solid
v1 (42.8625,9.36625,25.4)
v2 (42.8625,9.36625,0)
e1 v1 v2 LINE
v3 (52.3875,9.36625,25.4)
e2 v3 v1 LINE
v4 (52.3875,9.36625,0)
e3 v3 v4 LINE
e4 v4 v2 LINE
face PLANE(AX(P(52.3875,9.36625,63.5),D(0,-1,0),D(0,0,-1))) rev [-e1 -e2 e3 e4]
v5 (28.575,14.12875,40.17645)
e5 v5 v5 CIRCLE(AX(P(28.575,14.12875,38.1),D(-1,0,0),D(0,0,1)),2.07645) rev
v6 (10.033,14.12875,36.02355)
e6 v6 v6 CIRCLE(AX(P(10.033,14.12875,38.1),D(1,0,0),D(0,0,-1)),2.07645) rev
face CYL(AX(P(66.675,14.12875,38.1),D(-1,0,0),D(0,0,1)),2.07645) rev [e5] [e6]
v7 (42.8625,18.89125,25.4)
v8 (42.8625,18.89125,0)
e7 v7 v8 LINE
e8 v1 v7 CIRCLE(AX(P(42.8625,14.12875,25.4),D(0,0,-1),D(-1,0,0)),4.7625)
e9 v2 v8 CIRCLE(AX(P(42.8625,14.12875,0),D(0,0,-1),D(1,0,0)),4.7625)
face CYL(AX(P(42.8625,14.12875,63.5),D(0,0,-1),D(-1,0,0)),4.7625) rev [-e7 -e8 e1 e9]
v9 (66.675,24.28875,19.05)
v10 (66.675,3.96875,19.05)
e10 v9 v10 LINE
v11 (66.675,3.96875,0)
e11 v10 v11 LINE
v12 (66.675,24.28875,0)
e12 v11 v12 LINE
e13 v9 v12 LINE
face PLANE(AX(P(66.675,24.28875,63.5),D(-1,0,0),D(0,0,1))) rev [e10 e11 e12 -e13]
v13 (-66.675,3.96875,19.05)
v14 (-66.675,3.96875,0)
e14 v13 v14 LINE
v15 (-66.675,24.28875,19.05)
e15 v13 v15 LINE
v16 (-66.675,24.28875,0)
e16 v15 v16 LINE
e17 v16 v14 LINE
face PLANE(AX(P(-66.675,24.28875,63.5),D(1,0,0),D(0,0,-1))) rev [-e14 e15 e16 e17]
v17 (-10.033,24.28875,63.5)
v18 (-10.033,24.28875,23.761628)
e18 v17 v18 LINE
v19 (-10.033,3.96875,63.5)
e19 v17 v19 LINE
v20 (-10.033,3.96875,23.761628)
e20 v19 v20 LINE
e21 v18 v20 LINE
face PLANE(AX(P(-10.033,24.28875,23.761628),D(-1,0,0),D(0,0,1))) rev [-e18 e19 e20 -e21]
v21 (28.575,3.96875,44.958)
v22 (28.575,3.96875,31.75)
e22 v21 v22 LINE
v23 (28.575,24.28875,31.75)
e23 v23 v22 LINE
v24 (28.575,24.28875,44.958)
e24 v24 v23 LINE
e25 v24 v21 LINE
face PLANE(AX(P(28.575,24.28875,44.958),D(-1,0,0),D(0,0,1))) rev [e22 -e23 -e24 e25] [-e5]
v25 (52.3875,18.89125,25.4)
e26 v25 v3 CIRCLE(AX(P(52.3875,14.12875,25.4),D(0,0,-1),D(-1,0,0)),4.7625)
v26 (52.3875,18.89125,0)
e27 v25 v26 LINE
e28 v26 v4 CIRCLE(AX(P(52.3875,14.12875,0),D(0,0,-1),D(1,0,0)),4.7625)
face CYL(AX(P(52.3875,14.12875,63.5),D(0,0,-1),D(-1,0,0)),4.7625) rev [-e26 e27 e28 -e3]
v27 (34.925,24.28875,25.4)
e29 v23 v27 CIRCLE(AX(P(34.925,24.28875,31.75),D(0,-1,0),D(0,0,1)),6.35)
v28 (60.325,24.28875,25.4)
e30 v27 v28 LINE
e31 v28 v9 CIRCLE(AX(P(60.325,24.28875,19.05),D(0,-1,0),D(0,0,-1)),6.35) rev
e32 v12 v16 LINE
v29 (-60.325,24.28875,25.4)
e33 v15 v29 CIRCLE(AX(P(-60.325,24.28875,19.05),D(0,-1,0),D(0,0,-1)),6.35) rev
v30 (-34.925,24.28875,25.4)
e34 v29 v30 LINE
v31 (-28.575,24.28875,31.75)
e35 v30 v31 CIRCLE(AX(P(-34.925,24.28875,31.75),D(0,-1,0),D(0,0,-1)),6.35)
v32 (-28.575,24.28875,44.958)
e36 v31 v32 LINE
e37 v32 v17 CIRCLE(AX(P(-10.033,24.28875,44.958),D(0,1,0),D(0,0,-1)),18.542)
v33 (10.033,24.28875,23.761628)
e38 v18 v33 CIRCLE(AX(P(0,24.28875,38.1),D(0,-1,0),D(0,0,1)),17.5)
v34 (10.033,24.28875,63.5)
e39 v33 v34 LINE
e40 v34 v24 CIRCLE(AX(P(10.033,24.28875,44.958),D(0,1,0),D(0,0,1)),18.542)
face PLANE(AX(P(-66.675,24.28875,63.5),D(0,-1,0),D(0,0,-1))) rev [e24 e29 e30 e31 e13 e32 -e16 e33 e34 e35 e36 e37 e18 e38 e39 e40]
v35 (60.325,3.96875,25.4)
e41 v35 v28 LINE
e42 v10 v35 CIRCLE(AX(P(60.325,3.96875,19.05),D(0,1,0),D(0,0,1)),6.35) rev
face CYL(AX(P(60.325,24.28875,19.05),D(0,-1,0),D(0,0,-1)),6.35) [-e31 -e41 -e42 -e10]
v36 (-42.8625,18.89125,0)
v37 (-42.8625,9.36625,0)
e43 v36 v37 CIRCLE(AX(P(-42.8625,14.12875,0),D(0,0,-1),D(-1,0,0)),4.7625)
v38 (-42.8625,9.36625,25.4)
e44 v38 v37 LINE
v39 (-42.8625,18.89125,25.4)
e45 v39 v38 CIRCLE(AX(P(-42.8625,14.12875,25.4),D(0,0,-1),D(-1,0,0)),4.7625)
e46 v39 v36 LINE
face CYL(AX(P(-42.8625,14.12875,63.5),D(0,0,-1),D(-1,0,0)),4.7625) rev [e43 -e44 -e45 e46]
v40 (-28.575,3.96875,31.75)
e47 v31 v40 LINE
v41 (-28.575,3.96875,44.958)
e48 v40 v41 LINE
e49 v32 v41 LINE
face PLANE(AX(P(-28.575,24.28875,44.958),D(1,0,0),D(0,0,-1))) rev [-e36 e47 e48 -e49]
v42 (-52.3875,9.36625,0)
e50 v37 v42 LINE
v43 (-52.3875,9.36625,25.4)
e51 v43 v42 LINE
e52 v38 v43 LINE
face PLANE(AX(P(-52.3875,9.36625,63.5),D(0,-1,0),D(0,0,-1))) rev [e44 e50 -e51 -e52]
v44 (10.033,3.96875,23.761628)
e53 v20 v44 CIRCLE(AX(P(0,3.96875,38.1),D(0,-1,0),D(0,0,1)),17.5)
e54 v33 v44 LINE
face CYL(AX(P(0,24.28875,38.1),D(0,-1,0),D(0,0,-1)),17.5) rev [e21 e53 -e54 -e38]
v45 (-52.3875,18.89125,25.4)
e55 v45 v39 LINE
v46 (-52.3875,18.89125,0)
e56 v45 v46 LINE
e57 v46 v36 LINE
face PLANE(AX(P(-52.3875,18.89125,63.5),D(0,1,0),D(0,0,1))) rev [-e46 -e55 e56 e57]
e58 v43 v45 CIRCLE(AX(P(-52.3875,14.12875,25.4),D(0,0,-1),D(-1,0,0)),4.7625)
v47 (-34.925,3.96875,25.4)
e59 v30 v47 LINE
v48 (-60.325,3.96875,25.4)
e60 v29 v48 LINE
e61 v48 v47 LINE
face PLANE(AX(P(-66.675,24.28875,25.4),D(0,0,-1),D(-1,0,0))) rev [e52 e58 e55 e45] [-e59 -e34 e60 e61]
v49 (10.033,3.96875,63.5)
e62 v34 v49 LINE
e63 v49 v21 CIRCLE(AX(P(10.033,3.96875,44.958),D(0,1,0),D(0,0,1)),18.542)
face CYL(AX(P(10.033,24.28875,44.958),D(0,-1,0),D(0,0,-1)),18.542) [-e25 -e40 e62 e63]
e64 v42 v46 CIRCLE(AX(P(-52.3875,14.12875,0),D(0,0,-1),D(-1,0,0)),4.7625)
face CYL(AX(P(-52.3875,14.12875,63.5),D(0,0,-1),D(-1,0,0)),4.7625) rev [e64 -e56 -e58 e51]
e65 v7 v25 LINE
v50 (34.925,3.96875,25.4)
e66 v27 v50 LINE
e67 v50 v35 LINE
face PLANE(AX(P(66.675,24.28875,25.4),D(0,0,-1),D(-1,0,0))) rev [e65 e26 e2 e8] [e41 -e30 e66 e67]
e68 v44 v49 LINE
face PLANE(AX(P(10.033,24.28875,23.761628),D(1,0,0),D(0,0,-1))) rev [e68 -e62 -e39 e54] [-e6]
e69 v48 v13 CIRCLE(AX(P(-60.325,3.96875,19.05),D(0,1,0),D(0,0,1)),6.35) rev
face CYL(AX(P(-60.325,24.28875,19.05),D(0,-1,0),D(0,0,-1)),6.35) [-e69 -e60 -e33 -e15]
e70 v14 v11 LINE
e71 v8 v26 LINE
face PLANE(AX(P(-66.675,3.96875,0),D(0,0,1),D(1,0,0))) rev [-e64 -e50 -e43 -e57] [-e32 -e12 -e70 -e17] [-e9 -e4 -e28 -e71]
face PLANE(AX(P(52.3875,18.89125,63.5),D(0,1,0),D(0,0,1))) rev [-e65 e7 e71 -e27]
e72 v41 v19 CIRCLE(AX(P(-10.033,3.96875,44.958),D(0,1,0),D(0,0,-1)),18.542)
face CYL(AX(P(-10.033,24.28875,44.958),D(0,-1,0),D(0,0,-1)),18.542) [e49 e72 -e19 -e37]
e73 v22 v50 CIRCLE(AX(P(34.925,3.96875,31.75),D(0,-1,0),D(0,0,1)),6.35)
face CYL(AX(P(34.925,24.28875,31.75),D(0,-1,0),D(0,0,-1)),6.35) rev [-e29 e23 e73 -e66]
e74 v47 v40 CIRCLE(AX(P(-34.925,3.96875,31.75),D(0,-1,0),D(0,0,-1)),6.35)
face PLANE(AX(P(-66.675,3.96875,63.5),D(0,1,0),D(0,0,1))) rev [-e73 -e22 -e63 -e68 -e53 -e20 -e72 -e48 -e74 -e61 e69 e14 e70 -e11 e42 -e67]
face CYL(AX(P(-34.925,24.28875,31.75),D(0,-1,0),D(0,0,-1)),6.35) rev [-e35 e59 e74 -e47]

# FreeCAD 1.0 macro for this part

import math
import FreeCAD as App
import Part
import Sketcher
from FreeCAD import Vector
Q = App.Units.Quantity


def edges_at(feature, points):
    """Names of the edges that pass closest to the given points."""
    edges = feature.Shape.Edges
    near = lambda p: min(range(len(edges)), key=lambda i: edges[i].distToShape(Part.Vertex(*p))[0])
    return sorted({f"Edge{near(p) + 1}" for p in points})

doc = App.newDocument("Part")
body = doc.addObject("PartDesign::Body", "Body")

# Sketch on XY plane
sketch1 = body.newObject("Sketcher::SketchObject", "Sketch")
sketch1.AttachmentSupport = (doc.getObject("XY_Plane"), [""])
sketch1.MapMode = "FlatFace"
sketch1.addGeometry([
    Part.LineSegment(Vector(-66.675, 24.28875, 0), Vector(-66.675, 3.96875, 0)),
    Part.LineSegment(Vector(-66.675, 3.96875, 0), Vector(66.675, 3.96875, 0)),
    Part.LineSegment(Vector(66.675, 3.96875, 0), Vector(66.675, 24.28875, 0)),
    Part.LineSegment(Vector(66.675, 24.28875, 0), Vector(-66.675, 24.28875, 0)),
], False)
sketch1.addConstraint([
    Sketcher.Constraint("Coincident", 0, 2, 1, 1),
    Sketcher.Constraint("Coincident", 1, 2, 2, 1),
    Sketcher.Constraint("Coincident", 2, 2, 3, 1),
    Sketcher.Constraint("Coincident", 3, 2, 0, 1),
    Sketcher.Constraint("Vertical", 0),
    Sketcher.Constraint("Horizontal", 1),
    Sketcher.Constraint("Vertical", 2),
    Sketcher.Constraint("Horizontal", 3),
    Sketcher.Constraint("DistanceY", 0, 2, 0, 1, Q("0.8 in")),
    Sketcher.Constraint("DistanceX", 1, 1, 1, 2, Q("5.25 in")),
    Sketcher.Constraint("DistanceX", 0, 2, -1, 1, Q("2.625 in")),
    Sketcher.Constraint("DistanceY", -1, 1, 0, 2, Q("0.15625 in")),
])
pad1 = body.newObject("PartDesign::Pad", "Pad")
pad1.Profile = sketch1
pad1.Length = Q("2.5 in")

# Sketch on XZ plane
sketch2 = body.newObject("Sketcher::SketchObject", "Sketch001")
sketch2.AttachmentSupport = (doc.getObject("XZ_Plane"), [""])
sketch2.MapMode = "FlatFace"
sketch2.AttachmentOffset = App.Placement(Vector(0, 0, -0.15625 * 25.4), App.Rotation())
sketch2.addGeometry([
    Part.LineSegment(Vector(-10.033, 63.5, 0), Vector(-10.033, 23.761628, 0)),  # 0
    Part.ArcOfCircle(Part.Circle(Vector(0, 38.1, 0), Vector(0, 0, 1), 17.5), math.radians(-124.981666), math.radians(-55.018334)),  # 1
    Part.LineSegment(Vector(10.033, 23.761628, 0), Vector(10.033, 63.5, 0)),  # 2
    Part.ArcOfCircle(Part.Circle(Vector(10.033, 44.958, 0), Vector(0, 0, 1), 18.542), math.radians(0), math.radians(90)),  # 3
    Part.LineSegment(Vector(28.575, 44.958, 0), Vector(28.575, 31.75, 0)),  # 4
    Part.ArcOfCircle(Part.Circle(Vector(34.925, 31.75, 0), Vector(0, 0, 1), 6.35), math.radians(180), math.radians(270)),  # 5
    Part.LineSegment(Vector(34.925, 25.4, 0), Vector(66.675, 25.4, 0)),  # 6
    Part.LineSegment(Vector(66.675, 25.4, 0), Vector(66.675, 81.695933, 0)),  # 7
    Part.LineSegment(Vector(66.675, 81.695933, 0), Vector(-66.675, 81.695933, 0)),  # 8
    Part.LineSegment(Vector(-66.675, 81.695933, 0), Vector(-66.675, 25.4, 0)),  # 9
    Part.LineSegment(Vector(-66.675, 25.4, 0), Vector(-34.925, 25.4, 0)),  # 10
    Part.ArcOfCircle(Part.Circle(Vector(-34.925, 31.75, 0), Vector(0, 0, 1), 6.35), math.radians(-90), math.radians(0)),  # 11
    Part.LineSegment(Vector(-28.575, 31.75, 0), Vector(-28.575, 44.958, 0)),  # 12
    Part.ArcOfCircle(Part.Circle(Vector(-10.033, 44.958, 0), Vector(0, 0, 1), 18.542), math.radians(90), math.radians(180)),  # 13
], False)
sketch2.addConstraint([
    Sketcher.Constraint("Coincident", 0, 2, 1, 1),
    Sketcher.Constraint("Coincident", 1, 2, 2, 1),
    Sketcher.Constraint("Coincident", 2, 2, 3, 2),
    Sketcher.Constraint("Tangent", 3, 1, 4, 1),
    Sketcher.Constraint("Tangent", 4, 2, 5, 1),
    Sketcher.Constraint("Tangent", 5, 2, 6, 1),
    Sketcher.Constraint("Coincident", 6, 2, 7, 1),
    Sketcher.Constraint("Coincident", 7, 2, 8, 1),
    Sketcher.Constraint("Coincident", 8, 2, 9, 1),
    Sketcher.Constraint("Coincident", 9, 2, 10, 1),
    Sketcher.Constraint("Tangent", 10, 2, 11, 1),
    Sketcher.Constraint("Tangent", 11, 2, 12, 1),
    Sketcher.Constraint("Tangent", 12, 2, 13, 2),
    Sketcher.Constraint("Coincident", 13, 1, 0, 1),
    Sketcher.Constraint("Vertical", 0),
    Sketcher.Constraint("Vertical", 2),
    Sketcher.Constraint("Vertical", 4),
    Sketcher.Constraint("Horizontal", 6),
    Sketcher.Constraint("Vertical", 7),
    Sketcher.Constraint("Horizontal", 8),
    Sketcher.Constraint("Vertical", 9),
    Sketcher.Constraint("Horizontal", 10),
    Sketcher.Constraint("Vertical", 12),
    Sketcher.Constraint("Equal", 5, 11),
    Sketcher.Constraint("Equal", 3, 13),
    Sketcher.Constraint("Symmetric", 5, 3, 11, 3, -2),
    Sketcher.Constraint("Symmetric", 0, 2, 1, 2, -2),
    Sketcher.Constraint("Horizontal", 3, 3, 13, 3),
    Sketcher.Constraint("Vertical", 13, 3, 0, 2),
    Sketcher.Constraint("Equal", 6, 10),
    Sketcher.Constraint("Radius", 3, Q("0.73 in")),
    Sketcher.Constraint("Radius", 5, Q("0.25 in")),
    Sketcher.Constraint("DistanceY", -1, 1, 5, 2, Q("1 in")),
    Sketcher.Constraint("DistanceY", 1, 3, 2, 2, Q("1 in")),
    Sketcher.Constraint("DistanceX", 6, 1, 6, 2, Q("1.25 in")),
    Sketcher.Constraint("DistanceX", 8, 2, 8, 1, Q("5.25 in")),
    Sketcher.Constraint("DistanceY", 4, 2, 4, 1, Q("0.52 in")),
    Sketcher.Constraint("Radius", 1, 17.5),
    Sketcher.Constraint("DistanceY", 7, 1, 7, 2, 56.295933),
])
pocket1 = body.newObject("PartDesign::Pocket", "Pocket")
pocket1.Profile = sketch2
pocket1.Type = "ThroughAll"
doc.recompute()

fillet = body.newObject("PartDesign::Fillet", "Fillet")
fillet.Base = (pocket1, edges_at(pocket1, [(-66.675, 14.129, 25.4), (66.675, 14.129, 25.4)]))
fillet.Radius = Q("0.25 in")

# Sketch on XY plane
sketch3 = body.newObject("Sketcher::SketchObject", "Sketch002")
sketch3.AttachmentSupport = (doc.getObject("XY_Plane"), [""])
sketch3.MapMode = "FlatFace"
sketch3.addGeometry([
    Part.LineSegment(Vector(42.8625, 18.89125, 0), Vector(52.3875, 18.89125, 0)),  # 0
    Part.ArcOfCircle(Part.Circle(Vector(52.3875, 14.12875, 0), Vector(0, 0, 1), 4.7625), math.radians(-90), math.radians(90)),  # 1
    Part.LineSegment(Vector(52.3875, 9.36625, 0), Vector(42.8625, 9.36625, 0)),  # 2
    Part.ArcOfCircle(Part.Circle(Vector(42.8625, 14.12875, 0), Vector(0, 0, 1), 4.7625), math.radians(90), math.radians(270)),  # 3
    Part.LineSegment(Vector(-42.8625, 9.36625, 0), Vector(-52.3875, 9.36625, 0)),  # 4
    Part.ArcOfCircle(Part.Circle(Vector(-52.3875, 14.12875, 0), Vector(0, 0, 1), 4.7625), math.radians(90), math.radians(270)),  # 5
    Part.LineSegment(Vector(-52.3875, 18.89125, 0), Vector(-42.8625, 18.89125, 0)),  # 6
    Part.ArcOfCircle(Part.Circle(Vector(-42.8625, 14.12875, 0), Vector(0, 0, 1), 4.7625), math.radians(-90), math.radians(90)),  # 7
], False)
sketch3.addConstraint([
    Sketcher.Constraint("Tangent", 0, 2, 1, 2),
    Sketcher.Constraint("Tangent", 1, 1, 2, 1),
    Sketcher.Constraint("Tangent", 2, 2, 3, 2),
    Sketcher.Constraint("Tangent", 3, 1, 0, 1),
    Sketcher.Constraint("Tangent", 4, 2, 5, 2),
    Sketcher.Constraint("Tangent", 5, 1, 6, 1),
    Sketcher.Constraint("Tangent", 6, 2, 7, 2),
    Sketcher.Constraint("Tangent", 7, 1, 4, 1),
    Sketcher.Constraint("Horizontal", 0),
    Sketcher.Constraint("Horizontal", 2),
    Sketcher.Constraint("Horizontal", 4),
    Sketcher.Constraint("Horizontal", 6),
    Sketcher.Constraint("Equal", 3, 5),
    Sketcher.Constraint("Symmetric", 1, 3, 5, 3, -2),
    Sketcher.Constraint("Equal", 2, 4),
    Sketcher.Constraint("Radius", 1, Q("0.1875 in")),
    Sketcher.Constraint("DistanceX", 0, 1, 0, 2, Q("0.375 in")),
    Sketcher.Constraint("DistanceX", 5, 3, 3, 3, Q("3.75 in")),
    Sketcher.Constraint("DistanceY", -1, 1, 1, 3, 14.12875),
])
pocket2 = body.newObject("PartDesign::Pocket", "Pocket001")
pocket2.Profile = sketch3
pocket2.Type = "ThroughAll"
pocket2.Reversed = True

# Sketch on YZ plane
sketch4 = body.newObject("Sketcher::SketchObject", "Sketch003")
sketch4.AttachmentSupport = (doc.getObject("YZ_Plane"), [""])
sketch4.MapMode = "FlatFace"
sketch4.addGeometry(Part.Circle(Vector(14.12875, 38.1, 0), Vector(0, 0, 1), 2.07645), False)
sketch4.addConstraint([
    Sketcher.Constraint("Diameter", 0, Q("0.1635 in")),
    Sketcher.Constraint("DistanceY", -1, 1, 0, 3, Q("1.5 in")),
    Sketcher.Constraint("DistanceX", -1, 1, 0, 3, 14.12875),
])
pocket3 = body.newObject("PartDesign::Pocket", "Pocket002")
pocket3.Profile = sketch4
pocket3.Type = "ThroughAll"
pocket3.Reversed = True

doc.recompute()
